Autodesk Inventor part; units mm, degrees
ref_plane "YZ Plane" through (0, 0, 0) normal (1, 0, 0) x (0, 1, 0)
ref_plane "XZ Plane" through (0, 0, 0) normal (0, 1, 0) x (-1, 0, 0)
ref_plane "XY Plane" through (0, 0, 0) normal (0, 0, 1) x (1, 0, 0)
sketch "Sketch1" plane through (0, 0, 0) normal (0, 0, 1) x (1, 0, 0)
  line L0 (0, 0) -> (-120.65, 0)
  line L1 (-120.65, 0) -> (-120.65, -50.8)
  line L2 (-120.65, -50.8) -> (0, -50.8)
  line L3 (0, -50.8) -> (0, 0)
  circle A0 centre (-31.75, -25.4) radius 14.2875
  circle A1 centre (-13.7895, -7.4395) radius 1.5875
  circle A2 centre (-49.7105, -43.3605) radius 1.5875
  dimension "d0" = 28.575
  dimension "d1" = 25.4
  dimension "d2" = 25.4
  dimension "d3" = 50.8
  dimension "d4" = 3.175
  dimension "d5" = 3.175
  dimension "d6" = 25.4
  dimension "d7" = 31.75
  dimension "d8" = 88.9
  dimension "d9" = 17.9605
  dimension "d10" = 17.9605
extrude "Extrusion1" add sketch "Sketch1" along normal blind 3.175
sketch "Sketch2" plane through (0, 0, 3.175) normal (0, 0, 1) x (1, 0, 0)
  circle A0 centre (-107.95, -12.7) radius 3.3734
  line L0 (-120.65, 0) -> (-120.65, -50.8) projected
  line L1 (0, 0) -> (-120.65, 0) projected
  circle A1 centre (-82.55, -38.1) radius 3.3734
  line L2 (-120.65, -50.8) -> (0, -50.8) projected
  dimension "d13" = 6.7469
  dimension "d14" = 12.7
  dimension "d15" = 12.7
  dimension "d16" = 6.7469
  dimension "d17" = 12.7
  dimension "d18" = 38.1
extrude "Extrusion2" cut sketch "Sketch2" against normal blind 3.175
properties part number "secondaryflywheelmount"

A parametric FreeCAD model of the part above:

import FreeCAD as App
import Part
import Sketcher

V = App.Vector
Q = App.Units.Quantity


def add_polygon(sketch, points):
    """Adds a closed chain of lines whose ends are joined by coincident constraints."""
    first, n = sketch.GeometryCount, len(points)
    for a, b in zip(points, points[1:] + points[:1]):
        sketch.addGeometry(Part.LineSegment(App.Vector(*a, 0), App.Vector(*b, 0)), False)
    for i in range(n):
        sketch.addConstraint(Sketcher.Constraint("Coincident", first + i, 2, first + (i + 1) % n, 1))

doc = App.newDocument("Part")
body = doc.addObject("PartDesign::Body", "Body")

# Sketch on XY plane
sketch1 = body.newObject("Sketcher::SketchObject", "Sketch")
sketch1.AttachmentSupport = (doc.getObject("XY_Plane"), [""])
sketch1.MapMode = "FlatFace"
add_polygon(sketch1, [(0, -50.8), (0, 0), (-120.7, 0), (-120.7, -50.8)])  # lines 0-3
sketch1.addGeometry(Part.Circle(V(-49.7, -43.4, 0), V(0, 0, 1), 1.6), False)  # 4
sketch1.addGeometry(Part.Circle(V(-31.8, -25.4, 0), V(0, 0, 1), 14.3), False)  # 5
sketch1.addGeometry(Part.Circle(V(-13.8, -7.4, 0), V(0, 0, 1), 1.6), False)  # 6
sketch1.addConstraint(Sketcher.Constraint("Vertical", 0))
sketch1.addConstraint(Sketcher.Constraint("Horizontal", 1))
sketch1.addConstraint(Sketcher.Constraint("Vertical", 2))
sketch1.addConstraint(Sketcher.Constraint("Horizontal", 3))
sketch1.addConstraint(Sketcher.Constraint("Coincident", 0, 2, -1, 1))
sketch1.addConstraint(Sketcher.Constraint("Equal", 4, 6))
sketch1.addConstraint(Sketcher.Constraint("DistanceY", 0, 1, 0, 2, Q("2 in")))
sketch1.addConstraint(Sketcher.Constraint("Diameter", 4, Q("0.125 in")))
sketch1.addConstraint(Sketcher.Constraint("Diameter", 5, Q("1.125 in")))
sketch1.addConstraint(Sketcher.Constraint("DistanceY", 5, 3, -1, 1, Q("1 in")))
sketch1.addConstraint(Sketcher.Constraint("DistanceX", 1, 2, 5, 3, Q("3.5 in")))
sketch1.addConstraint(Sketcher.Constraint("DistanceX", 5, 3, -1, 1, Q("1.25 in")))
sketch1.addConstraint(Sketcher.Constraint("DistanceX", 4, 3, 5, 3, Q("0.7071 in")))
sketch1.addConstraint(Sketcher.Constraint("DistanceY", 4, 3, 5, 3, Q("0.7071 in")))
sketch1.addConstraint(Sketcher.Constraint("DistanceX", 5, 3, 6, 3, Q("0.7071 in")))
sketch1.addConstraint(Sketcher.Constraint("DistanceY", 5, 3, 6, 3, Q("0.7071 in")))
pad1 = body.newObject("PartDesign::Pad", "Pad")
pad1.Profile = sketch1
pad1.Length = Q("0.125 in")

# Sketch on XY plane
sketch2 = body.newObject("Sketcher::SketchObject", "Sketch001")
sketch2.AttachmentSupport = (doc.getObject("XY_Plane"), [""])
sketch2.MapMode = "FlatFace"
sketch2.AttachmentOffset = App.Placement(V(0, 0, 0.125 * 25.4), App.Rotation())
sketch2.addGeometry(Part.Circle(V(-108, -12.7, 0), V(0, 0, 1), 3.4), False)
sketch2.addGeometry(Part.Circle(V(-82.5, -38.1, 0), V(0, 0, 1), 3.4), False)
sketch2.addConstraint(Sketcher.Constraint("Equal", 0, 1))
sketch2.addConstraint(Sketcher.Constraint("Diameter", 0, Q("0.265622 in")))
sketch2.addConstraint(Sketcher.Constraint("DistanceY", 0, 3, -1, 1, Q("0.5 in")))
sketch2.addConstraint(Sketcher.Constraint("DistanceY", 1, 3, -1, 1, Q("1.5 in")))
sketch2.addConstraint(Sketcher.Constraint("DistanceX", 0, 3, 1, 3, Q("1 in")))
sketch2.addConstraint(Sketcher.Constraint("DistanceX", 0, 3, -1, 1, Q("4.25 in")))
pocket1 = body.newObject("PartDesign::Pocket", "Pocket")
pocket1.Profile = sketch2
pocket1.Length = Q("0.125 in")

doc.recompute()
